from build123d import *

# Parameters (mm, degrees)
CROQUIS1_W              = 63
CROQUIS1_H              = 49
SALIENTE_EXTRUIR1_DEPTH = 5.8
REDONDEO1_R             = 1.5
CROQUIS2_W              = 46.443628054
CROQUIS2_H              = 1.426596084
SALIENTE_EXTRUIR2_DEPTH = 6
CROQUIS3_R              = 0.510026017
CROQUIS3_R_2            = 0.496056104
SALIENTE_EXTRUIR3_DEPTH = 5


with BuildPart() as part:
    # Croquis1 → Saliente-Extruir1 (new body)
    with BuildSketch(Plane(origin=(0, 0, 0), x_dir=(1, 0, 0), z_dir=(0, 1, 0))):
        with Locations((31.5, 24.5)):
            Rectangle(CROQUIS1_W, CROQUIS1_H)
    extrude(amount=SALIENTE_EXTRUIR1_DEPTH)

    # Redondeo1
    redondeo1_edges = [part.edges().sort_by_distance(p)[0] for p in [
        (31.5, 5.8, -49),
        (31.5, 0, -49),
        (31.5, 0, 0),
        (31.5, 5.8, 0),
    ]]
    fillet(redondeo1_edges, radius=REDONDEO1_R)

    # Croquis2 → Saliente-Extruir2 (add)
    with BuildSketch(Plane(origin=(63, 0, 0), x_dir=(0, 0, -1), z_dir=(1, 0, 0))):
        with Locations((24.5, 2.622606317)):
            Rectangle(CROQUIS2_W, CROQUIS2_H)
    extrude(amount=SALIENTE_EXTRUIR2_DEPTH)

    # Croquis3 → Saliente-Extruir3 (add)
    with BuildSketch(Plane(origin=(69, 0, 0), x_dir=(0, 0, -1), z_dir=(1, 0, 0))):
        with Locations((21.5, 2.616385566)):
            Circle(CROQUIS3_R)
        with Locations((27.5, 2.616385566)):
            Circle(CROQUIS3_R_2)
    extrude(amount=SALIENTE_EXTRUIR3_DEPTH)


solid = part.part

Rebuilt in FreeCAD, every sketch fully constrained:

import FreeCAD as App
import Part
import Sketcher


def edges_at(feature, points):
    """Names of the edges that pass closest to the given points."""
    edges = feature.Shape.Edges
    near = lambda p: min(range(len(edges)), key=lambda i: edges[i].distToShape(Part.Vertex(*p))[0])
    return sorted({f"Edge{near(p) + 1}" for p in points})


def add_polygon(sketch, points):
    """Adds a closed chain of lines whose ends are joined by coincident constraints."""
    first, n = sketch.GeometryCount, len(points)
    for a, b in zip(points, points[1:] + points[:1]):
        sketch.addGeometry(Part.LineSegment(App.Vector(*a, 0), App.Vector(*b, 0)), False)
    for i in range(n):
        sketch.addConstraint(Sketcher.Constraint("Coincident", first + i, 2, first + (i + 1) % n, 1))

doc = App.newDocument("Part")
body = doc.addObject("PartDesign::Body", "Body")

# Sketch on XZ plane
sketch1 = doc.addObject("Sketcher::SketchObject", "Sketch")
body.addObject(sketch1)
sketch1.AttachmentSupport = (doc.XZ_Plane, [""])
sketch1.MapMode = "FlatFace"
add_polygon(sketch1, [(0, -49), (0, 0), (63, 0), (63, -49)])  # lines 0-3
sketch1.addConstraint(Sketcher.Constraint("Vertical", 0))
sketch1.addConstraint(Sketcher.Constraint("Horizontal", 1))
sketch1.addConstraint(Sketcher.Constraint("Vertical", 2))
sketch1.addConstraint(Sketcher.Constraint("Horizontal", 3))
sketch1.addConstraint(Sketcher.Constraint("Coincident", 0, 2, -1, 1))
sketch1.addConstraint(Sketcher.Constraint("DistanceX", 1, 1, 1, 2, 63.0))
sketch1.addConstraint(Sketcher.Constraint("DistanceY", 0, 1, 0, 2, 49.0))
pad1 = doc.addObject("PartDesign::Pad", "Pad")
body.addObject(pad1)
pad1.Profile = sketch1
pad1.Length = 5.8
pad1.Reversed = True
doc.recompute()

fillet = doc.addObject("PartDesign::Fillet", "Fillet")
body.addObject(fillet)
fillet.Base = (pad1, edges_at(pad1, [
    (31.5, 5.8, -49),
    (31.5, 0, -49),
    (31.5, 0, 0),
    (31.5, 5.8, 0),
]))
fillet.Radius = 1.5

# Sketch on YZ plane
sketch2 = doc.addObject("Sketcher::SketchObject", "Sketch001")
body.addObject(sketch2)
sketch2.AttachmentSupport = (doc.YZ_Plane, [""])
sketch2.MapMode = "FlatFace"
sketch2.AttachmentOffset = App.Placement(App.Vector(0, 0, 63), App.Rotation())
add_polygon(sketch2, [(3.3, -1.3), (1.9, -1.3), (1.9, -47.7), (3.3, -47.7)])  # lines 0-3
sketch2.addConstraint(Sketcher.Constraint("Horizontal", 0))
sketch2.addConstraint(Sketcher.Constraint("Vertical", 1))
sketch2.addConstraint(Sketcher.Constraint("Horizontal", 2))
sketch2.addConstraint(Sketcher.Constraint("Vertical", 3))
sketch2.addConstraint(Sketcher.Constraint("DistanceY", 1, 2, 1, 1, 46.443628))
sketch2.addConstraint(Sketcher.Constraint("DistanceX", 0, 2, 0, 1, 1.426596))
sketch2.addConstraint(Sketcher.Constraint("DistanceX", -1, 1, 0, 2, 1.909308))
sketch2.addConstraint(Sketcher.Constraint("DistanceY", 0, 2, -1, 1, 1.278186))
pad2 = doc.addObject("PartDesign::Pad", "Pad001")
body.addObject(pad2)
pad2.Profile = sketch2
pad2.Length = 6

# Sketch on YZ plane
sketch3 = doc.addObject("Sketcher::SketchObject", "Sketch002")
body.addObject(sketch3)
sketch3.AttachmentSupport = (doc.YZ_Plane, [""])
sketch3.MapMode = "FlatFace"
sketch3.AttachmentOffset = App.Placement(App.Vector(0, 0, 69), App.Rotation())
sketch3.addGeometry(Part.Circle(App.Vector(2.62, -21.5, 0), App.Vector(0, 0, 1), 0.51), False)
sketch3.addGeometry(Part.Circle(App.Vector(2.62, -27.5, 0), App.Vector(0, 0, 1), 0.5), False)
sketch3.addConstraint(Sketcher.Constraint("Vertical", 0, 3, 1, 3))
sketch3.addConstraint(Sketcher.Constraint("DistanceY", 1, 3, 0, 3, 6.0))
sketch3.addConstraint(Sketcher.Constraint("DistanceY", 0, 3, -1, 1, 21.5))
sketch3.addConstraint(Sketcher.Constraint("Diameter", 0, 1.020052))
sketch3.addConstraint(Sketcher.Constraint("Diameter", 1, 0.992112))
sketch3.addConstraint(Sketcher.Constraint("DistanceX", -1, 1, 0, 3, 2.616386))
pad3 = doc.addObject("PartDesign::Pad", "Pad002")
body.addObject(pad3)
pad3.Profile = sketch3
pad3.Length = 5

doc.recompute()
